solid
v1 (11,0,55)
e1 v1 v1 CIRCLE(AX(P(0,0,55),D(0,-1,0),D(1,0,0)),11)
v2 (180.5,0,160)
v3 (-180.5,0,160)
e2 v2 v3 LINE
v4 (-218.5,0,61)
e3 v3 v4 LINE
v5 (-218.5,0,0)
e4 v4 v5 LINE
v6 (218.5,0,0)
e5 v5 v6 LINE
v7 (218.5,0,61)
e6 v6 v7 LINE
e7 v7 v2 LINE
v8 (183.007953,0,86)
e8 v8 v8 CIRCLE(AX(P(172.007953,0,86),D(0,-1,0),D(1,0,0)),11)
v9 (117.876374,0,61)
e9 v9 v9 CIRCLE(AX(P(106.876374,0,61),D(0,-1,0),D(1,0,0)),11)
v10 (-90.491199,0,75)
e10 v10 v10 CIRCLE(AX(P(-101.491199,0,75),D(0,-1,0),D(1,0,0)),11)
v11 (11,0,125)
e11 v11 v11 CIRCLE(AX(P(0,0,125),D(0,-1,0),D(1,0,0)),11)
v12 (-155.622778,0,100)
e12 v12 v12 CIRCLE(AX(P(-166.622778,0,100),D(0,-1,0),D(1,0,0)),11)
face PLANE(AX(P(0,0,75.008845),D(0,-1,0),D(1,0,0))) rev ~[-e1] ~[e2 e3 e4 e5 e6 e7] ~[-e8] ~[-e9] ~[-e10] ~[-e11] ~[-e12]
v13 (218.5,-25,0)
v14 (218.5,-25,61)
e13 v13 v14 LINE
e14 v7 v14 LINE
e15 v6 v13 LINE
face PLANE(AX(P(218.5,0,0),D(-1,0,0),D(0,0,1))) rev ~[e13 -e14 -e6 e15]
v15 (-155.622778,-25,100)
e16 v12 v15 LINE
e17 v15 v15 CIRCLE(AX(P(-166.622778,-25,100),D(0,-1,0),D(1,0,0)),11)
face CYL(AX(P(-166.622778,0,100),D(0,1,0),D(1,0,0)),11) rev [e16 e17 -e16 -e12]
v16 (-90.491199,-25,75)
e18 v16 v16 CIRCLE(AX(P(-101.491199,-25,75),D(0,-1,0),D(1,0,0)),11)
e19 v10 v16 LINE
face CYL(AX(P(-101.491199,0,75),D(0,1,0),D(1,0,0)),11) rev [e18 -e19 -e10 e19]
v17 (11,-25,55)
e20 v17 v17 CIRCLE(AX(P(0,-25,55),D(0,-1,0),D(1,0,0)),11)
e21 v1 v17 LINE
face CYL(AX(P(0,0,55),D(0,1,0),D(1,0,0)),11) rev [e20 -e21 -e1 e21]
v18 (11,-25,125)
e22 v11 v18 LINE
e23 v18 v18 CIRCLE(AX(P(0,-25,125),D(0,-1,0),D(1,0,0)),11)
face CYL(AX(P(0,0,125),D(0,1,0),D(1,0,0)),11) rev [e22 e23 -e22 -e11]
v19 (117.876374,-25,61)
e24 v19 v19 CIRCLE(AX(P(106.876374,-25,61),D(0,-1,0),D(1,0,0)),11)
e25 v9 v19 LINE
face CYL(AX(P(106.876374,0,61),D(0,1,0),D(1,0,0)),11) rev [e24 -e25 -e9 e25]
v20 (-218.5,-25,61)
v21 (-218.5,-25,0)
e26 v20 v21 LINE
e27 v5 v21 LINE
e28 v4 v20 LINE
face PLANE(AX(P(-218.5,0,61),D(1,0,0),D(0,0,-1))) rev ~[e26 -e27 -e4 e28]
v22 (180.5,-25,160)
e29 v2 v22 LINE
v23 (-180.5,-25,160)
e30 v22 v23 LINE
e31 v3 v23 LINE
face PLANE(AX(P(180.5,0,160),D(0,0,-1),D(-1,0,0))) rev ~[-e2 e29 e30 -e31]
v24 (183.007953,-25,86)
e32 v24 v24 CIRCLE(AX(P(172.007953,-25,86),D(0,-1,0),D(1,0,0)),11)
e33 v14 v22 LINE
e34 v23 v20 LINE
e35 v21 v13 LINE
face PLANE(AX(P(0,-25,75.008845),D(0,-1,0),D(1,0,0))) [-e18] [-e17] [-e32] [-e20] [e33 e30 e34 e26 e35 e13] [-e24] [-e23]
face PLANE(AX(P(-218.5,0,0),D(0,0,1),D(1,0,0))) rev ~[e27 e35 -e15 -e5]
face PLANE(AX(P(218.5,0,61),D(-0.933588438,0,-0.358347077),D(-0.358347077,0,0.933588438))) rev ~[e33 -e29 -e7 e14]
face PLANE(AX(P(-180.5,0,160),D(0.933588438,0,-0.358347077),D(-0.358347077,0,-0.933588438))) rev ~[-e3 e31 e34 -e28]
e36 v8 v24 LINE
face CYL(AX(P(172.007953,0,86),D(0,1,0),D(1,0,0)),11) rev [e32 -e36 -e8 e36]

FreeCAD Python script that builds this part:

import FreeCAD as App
import Part
import Sketcher
from FreeCAD import Vector


def add_polygon(sketch, points):
    """Adds a closed chain of lines whose ends are joined by coincident constraints."""
    first, n = sketch.GeometryCount, len(points)
    for a, b in zip(points, points[1:] + points[:1]):
        sketch.addGeometry(Part.LineSegment(App.Vector(*a, 0), App.Vector(*b, 0)), False)
    for i in range(n):
        sketch.addConstraint(Sketcher.Constraint("Coincident", first + i, 2, first + (i + 1) % n, 1))

doc = App.newDocument("Part")
body = doc.addObject("PartDesign::Body", "Body")

# Sketch on XZ plane
sketch1 = body.newObject("Sketcher::SketchObject", "Sketch")
sketch1.AttachmentSupport = (doc.getObject("XZ_Plane"), [""])
sketch1.MapMode = "FlatFace"
add_polygon(sketch1, [(-218, 61), (-218, 0), (218, 0), (218, 61), (180, 160), (-180, 160)])  # lines 0-5
sketch1.addGeometry(Part.Circle(Vector(0, 55, 0), Vector(0, 0, 1), 11), False)  # 6
sketch1.addGeometry(Part.Circle(Vector(-101, 75, 0), Vector(0, 0, 1), 11), False)  # 7
sketch1.addGeometry(Part.Circle(Vector(107, 61, 0), Vector(0, 0, 1), 11), False)  # 8
sketch1.addGeometry(Part.Circle(Vector(172, 86, 0), Vector(0, 0, 1), 11), False)  # 9
sketch1.addGeometry(Part.Circle(Vector(-167, 100, 0), Vector(0, 0, 1), 11), False)  # 10
sketch1.addGeometry(Part.Circle(Vector(0, 125, 0), Vector(0, 0, 1), 11), False)  # 11
sketch1.addConstraint(Sketcher.Constraint("Vertical", 0))
sketch1.addConstraint(Sketcher.Constraint("Horizontal", 1))
sketch1.addConstraint(Sketcher.Constraint("Vertical", 2))
sketch1.addConstraint(Sketcher.Constraint("Horizontal", 4))
sketch1.addConstraint(Sketcher.Constraint("Equal", 6, 7))
sketch1.addConstraint(Sketcher.Constraint("Equal", 7, 8))
sketch1.addConstraint(Sketcher.Constraint("Equal", 8, 9))
sketch1.addConstraint(Sketcher.Constraint("Equal", 9, 10))
sketch1.addConstraint(Sketcher.Constraint("Equal", 10, 11))
sketch1.addConstraint(Sketcher.Constraint("Symmetric", 0, 2, 1, 2, -1, 1))
sketch1.addConstraint(Sketcher.Constraint("PointOnObject", 6, 3, -2))
sketch1.addConstraint(Sketcher.Constraint("PointOnObject", 11, 3, -2))
sketch1.addConstraint(Sketcher.Constraint("Horizontal", 8, 3, 2, 2))
sketch1.addConstraint(Sketcher.Constraint("Horizontal", 2, 2, 5, 2))
sketch1.addConstraint(Sketcher.Constraint("Equal", 3, 5))
sketch1.addConstraint(Sketcher.Constraint("Diameter", 6, 22.0))
sketch1.addConstraint(Sketcher.Constraint("DistanceX", 1, 1, 1, 2, 437.0))
sketch1.addConstraint(Sketcher.Constraint("DistanceX", 4, 2, 4, 1, 361.0))
sketch1.addConstraint(Sketcher.Constraint("DistanceY", 0, 2, 0, 1, 61.0))
sketch1.addConstraint(Sketcher.Constraint("DistanceY", -1, 1, 6, 3, 55.0))
sketch1.addConstraint(Sketcher.Constraint("DistanceY", -1, 1, 7, 3, 75.0))
sketch1.addConstraint(Sketcher.Constraint("DistanceY", -1, 1, 9, 3, 86.0))
sketch1.addConstraint(Sketcher.Constraint("DistanceY", -1, 1, 10, 3, 100.0))
sketch1.addConstraint(Sketcher.Constraint("DistanceY", -1, 1, 11, 3, 125.0))
sketch1.addConstraint(Sketcher.Constraint("DistanceY", -1, 1, 3, 2, 160.0))
sketch1.addConstraint(Sketcher.Constraint("DistanceX", 7, 3, -1, 1, 101.491199))
sketch1.addConstraint(Sketcher.Constraint("DistanceX", 10, 3, -1, 1, 166.622778))
sketch1.addConstraint(Sketcher.Constraint("DistanceX", 8, 3, 9, 3, 65.131579))
sketch1.addConstraint(Sketcher.Constraint("DistanceX", 7, 3, 9, 3, 273.499152))
pad1 = body.newObject("PartDesign::Pad", "Pad")
pad1.Profile = sketch1
pad1.Length = 25

doc.recompute()
